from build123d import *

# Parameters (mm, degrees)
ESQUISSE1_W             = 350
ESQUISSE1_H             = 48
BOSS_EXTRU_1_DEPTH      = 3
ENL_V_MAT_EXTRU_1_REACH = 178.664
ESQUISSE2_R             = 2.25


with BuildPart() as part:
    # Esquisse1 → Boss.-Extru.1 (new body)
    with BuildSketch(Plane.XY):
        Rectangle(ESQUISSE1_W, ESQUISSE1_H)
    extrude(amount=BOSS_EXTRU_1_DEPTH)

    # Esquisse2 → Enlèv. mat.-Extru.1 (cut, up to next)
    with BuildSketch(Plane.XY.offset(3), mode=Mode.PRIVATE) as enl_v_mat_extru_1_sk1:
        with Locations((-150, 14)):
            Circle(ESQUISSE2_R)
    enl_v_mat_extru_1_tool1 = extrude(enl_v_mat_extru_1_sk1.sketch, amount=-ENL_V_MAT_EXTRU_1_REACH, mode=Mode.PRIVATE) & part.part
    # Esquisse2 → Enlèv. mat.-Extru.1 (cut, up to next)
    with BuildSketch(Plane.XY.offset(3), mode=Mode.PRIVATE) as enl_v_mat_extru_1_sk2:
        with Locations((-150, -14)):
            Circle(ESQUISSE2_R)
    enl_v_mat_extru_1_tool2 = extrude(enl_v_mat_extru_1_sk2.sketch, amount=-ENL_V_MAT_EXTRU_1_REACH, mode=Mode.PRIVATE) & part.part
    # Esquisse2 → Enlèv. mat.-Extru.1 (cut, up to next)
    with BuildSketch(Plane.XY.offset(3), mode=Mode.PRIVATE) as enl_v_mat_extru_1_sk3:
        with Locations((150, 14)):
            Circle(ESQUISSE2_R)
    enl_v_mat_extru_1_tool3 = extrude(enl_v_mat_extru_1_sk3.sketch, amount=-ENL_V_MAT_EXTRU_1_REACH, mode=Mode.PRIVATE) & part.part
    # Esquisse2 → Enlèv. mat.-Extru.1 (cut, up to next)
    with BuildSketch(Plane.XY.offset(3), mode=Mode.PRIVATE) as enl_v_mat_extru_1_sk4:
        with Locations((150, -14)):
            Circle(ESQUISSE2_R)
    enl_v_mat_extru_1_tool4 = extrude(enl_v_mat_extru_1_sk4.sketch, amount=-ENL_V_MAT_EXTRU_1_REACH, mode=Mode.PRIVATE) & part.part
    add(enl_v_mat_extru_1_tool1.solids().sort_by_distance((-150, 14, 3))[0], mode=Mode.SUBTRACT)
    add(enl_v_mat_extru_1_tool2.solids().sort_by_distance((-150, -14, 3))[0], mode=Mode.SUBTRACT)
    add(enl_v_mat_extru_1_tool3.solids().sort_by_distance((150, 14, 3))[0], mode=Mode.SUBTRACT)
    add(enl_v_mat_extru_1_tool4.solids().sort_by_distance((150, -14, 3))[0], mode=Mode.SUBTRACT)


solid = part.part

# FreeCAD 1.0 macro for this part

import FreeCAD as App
import Part
import Sketcher
from FreeCAD import Vector


def add_polygon(sketch, points):
    """Adds a closed chain of lines whose ends are joined by coincident constraints."""
    first, n = sketch.GeometryCount, len(points)
    for a, b in zip(points, points[1:] + points[:1]):
        sketch.addGeometry(Part.LineSegment(App.Vector(*a, 0), App.Vector(*b, 0)), False)
    for i in range(n):
        sketch.addConstraint(Sketcher.Constraint("Coincident", first + i, 2, first + (i + 1) % n, 1))

doc = App.newDocument("Part")
body = doc.addObject("PartDesign::Body", "Body")

# Sketch on XY plane
sketch1 = doc.addObject("Sketcher::SketchObject", "Sketch")
body.addObject(sketch1)
sketch1.AttachmentSupport = (doc.XY_Plane, [""])
sketch1.MapMode = "FlatFace"
add_polygon(sketch1, [(-175, 24), (-175, -24), (175, -24), (175, 24)])  # lines 0-3
sketch1.addConstraint([
    Sketcher.Constraint("Vertical", 0),
    Sketcher.Constraint("Horizontal", 1),
    Sketcher.Constraint("Vertical", 2),
    Sketcher.Constraint("Horizontal", 3),
    Sketcher.Constraint("Symmetric", 0, 2, 2, 2, -1, 1),
    Sketcher.Constraint("DistanceX", 1, 1, 1, 2, 350.0),
    Sketcher.Constraint("DistanceY", 0, 2, 0, 1, 48.0),
])
pad1 = doc.addObject("PartDesign::Pad", "Pad")
body.addObject(pad1)
pad1.Profile = sketch1
pad1.Length = 3

# Sketch on XY plane
sketch2 = doc.addObject("Sketcher::SketchObject", "Sketch001")
body.addObject(sketch2)
sketch2.AttachmentSupport = (doc.XY_Plane, [""])
sketch2.MapMode = "FlatFace"
sketch2.AttachmentOffset = App.Placement(Vector(0, 0, 3), App.Rotation())
sketch2.addGeometry(Part.Circle(Vector(-150, 14, 0), Vector(0, 0, 1), 2.2), False)
sketch2.addConstraint([
    Sketcher.Constraint("Diameter", 0, 4.5),
    Sketcher.Constraint("DistanceX", 0, 3, -1, 1, 150.0),
    Sketcher.Constraint("DistanceY", -1, 1, 0, 3, 14.0),
])
pocket1 = doc.addObject("PartDesign::Pocket", "Pocket")
body.addObject(pocket1)
pocket1.Profile = sketch2
pocket1.Type = "UpToFirst"

# Sketch on XY plane
sketch3 = doc.addObject("Sketcher::SketchObject", "Sketch002")
body.addObject(sketch3)
sketch3.AttachmentSupport = (doc.XY_Plane, [""])
sketch3.MapMode = "FlatFace"
sketch3.AttachmentOffset = App.Placement(Vector(0, 0, 3), App.Rotation())
sketch3.addGeometry(Part.Circle(Vector(-150, -14, 0), Vector(0, 0, 1), 2.2), False)
sketch3.addConstraint([
    Sketcher.Constraint("Diameter", 0, 4.5),
    Sketcher.Constraint("DistanceX", 0, 3, -1, 1, 150.0),
    Sketcher.Constraint("DistanceY", 0, 3, -1, 1, 14.0),
])
pocket2 = doc.addObject("PartDesign::Pocket", "Pocket001")
body.addObject(pocket2)
pocket2.Profile = sketch3
pocket2.Type = "UpToFirst"

# Sketch on XY plane
sketch4 = doc.addObject("Sketcher::SketchObject", "Sketch003")
body.addObject(sketch4)
sketch4.AttachmentSupport = (doc.XY_Plane, [""])
sketch4.MapMode = "FlatFace"
sketch4.AttachmentOffset = App.Placement(Vector(0, 0, 3), App.Rotation())
sketch4.addGeometry(Part.Circle(Vector(150, 14, 0), Vector(0, 0, 1), 2.2), False)
sketch4.addConstraint([
    Sketcher.Constraint("Diameter", 0, 4.5),
    Sketcher.Constraint("DistanceX", -1, 1, 0, 3, 150.0),
    Sketcher.Constraint("DistanceY", -1, 1, 0, 3, 14.0),
])
pocket3 = doc.addObject("PartDesign::Pocket", "Pocket002")
body.addObject(pocket3)
pocket3.Profile = sketch4
pocket3.Type = "UpToFirst"

# Sketch on XY plane
sketch5 = doc.addObject("Sketcher::SketchObject", "Sketch004")
body.addObject(sketch5)
sketch5.AttachmentSupport = (doc.XY_Plane, [""])
sketch5.MapMode = "FlatFace"
sketch5.AttachmentOffset = App.Placement(Vector(0, 0, 3), App.Rotation())
sketch5.addGeometry(Part.Circle(Vector(150, -14, 0), Vector(0, 0, 1), 2.2), False)
sketch5.addConstraint([
    Sketcher.Constraint("Diameter", 0, 4.5),
    Sketcher.Constraint("DistanceX", -1, 1, 0, 3, 150.0),
    Sketcher.Constraint("DistanceY", 0, 3, -1, 1, 14.0),
])
pocket4 = doc.addObject("PartDesign::Pocket", "Pocket003")
body.addObject(pocket4)
pocket4.Profile = sketch5
pocket4.Type = "UpToFirst"

doc.recompute()
